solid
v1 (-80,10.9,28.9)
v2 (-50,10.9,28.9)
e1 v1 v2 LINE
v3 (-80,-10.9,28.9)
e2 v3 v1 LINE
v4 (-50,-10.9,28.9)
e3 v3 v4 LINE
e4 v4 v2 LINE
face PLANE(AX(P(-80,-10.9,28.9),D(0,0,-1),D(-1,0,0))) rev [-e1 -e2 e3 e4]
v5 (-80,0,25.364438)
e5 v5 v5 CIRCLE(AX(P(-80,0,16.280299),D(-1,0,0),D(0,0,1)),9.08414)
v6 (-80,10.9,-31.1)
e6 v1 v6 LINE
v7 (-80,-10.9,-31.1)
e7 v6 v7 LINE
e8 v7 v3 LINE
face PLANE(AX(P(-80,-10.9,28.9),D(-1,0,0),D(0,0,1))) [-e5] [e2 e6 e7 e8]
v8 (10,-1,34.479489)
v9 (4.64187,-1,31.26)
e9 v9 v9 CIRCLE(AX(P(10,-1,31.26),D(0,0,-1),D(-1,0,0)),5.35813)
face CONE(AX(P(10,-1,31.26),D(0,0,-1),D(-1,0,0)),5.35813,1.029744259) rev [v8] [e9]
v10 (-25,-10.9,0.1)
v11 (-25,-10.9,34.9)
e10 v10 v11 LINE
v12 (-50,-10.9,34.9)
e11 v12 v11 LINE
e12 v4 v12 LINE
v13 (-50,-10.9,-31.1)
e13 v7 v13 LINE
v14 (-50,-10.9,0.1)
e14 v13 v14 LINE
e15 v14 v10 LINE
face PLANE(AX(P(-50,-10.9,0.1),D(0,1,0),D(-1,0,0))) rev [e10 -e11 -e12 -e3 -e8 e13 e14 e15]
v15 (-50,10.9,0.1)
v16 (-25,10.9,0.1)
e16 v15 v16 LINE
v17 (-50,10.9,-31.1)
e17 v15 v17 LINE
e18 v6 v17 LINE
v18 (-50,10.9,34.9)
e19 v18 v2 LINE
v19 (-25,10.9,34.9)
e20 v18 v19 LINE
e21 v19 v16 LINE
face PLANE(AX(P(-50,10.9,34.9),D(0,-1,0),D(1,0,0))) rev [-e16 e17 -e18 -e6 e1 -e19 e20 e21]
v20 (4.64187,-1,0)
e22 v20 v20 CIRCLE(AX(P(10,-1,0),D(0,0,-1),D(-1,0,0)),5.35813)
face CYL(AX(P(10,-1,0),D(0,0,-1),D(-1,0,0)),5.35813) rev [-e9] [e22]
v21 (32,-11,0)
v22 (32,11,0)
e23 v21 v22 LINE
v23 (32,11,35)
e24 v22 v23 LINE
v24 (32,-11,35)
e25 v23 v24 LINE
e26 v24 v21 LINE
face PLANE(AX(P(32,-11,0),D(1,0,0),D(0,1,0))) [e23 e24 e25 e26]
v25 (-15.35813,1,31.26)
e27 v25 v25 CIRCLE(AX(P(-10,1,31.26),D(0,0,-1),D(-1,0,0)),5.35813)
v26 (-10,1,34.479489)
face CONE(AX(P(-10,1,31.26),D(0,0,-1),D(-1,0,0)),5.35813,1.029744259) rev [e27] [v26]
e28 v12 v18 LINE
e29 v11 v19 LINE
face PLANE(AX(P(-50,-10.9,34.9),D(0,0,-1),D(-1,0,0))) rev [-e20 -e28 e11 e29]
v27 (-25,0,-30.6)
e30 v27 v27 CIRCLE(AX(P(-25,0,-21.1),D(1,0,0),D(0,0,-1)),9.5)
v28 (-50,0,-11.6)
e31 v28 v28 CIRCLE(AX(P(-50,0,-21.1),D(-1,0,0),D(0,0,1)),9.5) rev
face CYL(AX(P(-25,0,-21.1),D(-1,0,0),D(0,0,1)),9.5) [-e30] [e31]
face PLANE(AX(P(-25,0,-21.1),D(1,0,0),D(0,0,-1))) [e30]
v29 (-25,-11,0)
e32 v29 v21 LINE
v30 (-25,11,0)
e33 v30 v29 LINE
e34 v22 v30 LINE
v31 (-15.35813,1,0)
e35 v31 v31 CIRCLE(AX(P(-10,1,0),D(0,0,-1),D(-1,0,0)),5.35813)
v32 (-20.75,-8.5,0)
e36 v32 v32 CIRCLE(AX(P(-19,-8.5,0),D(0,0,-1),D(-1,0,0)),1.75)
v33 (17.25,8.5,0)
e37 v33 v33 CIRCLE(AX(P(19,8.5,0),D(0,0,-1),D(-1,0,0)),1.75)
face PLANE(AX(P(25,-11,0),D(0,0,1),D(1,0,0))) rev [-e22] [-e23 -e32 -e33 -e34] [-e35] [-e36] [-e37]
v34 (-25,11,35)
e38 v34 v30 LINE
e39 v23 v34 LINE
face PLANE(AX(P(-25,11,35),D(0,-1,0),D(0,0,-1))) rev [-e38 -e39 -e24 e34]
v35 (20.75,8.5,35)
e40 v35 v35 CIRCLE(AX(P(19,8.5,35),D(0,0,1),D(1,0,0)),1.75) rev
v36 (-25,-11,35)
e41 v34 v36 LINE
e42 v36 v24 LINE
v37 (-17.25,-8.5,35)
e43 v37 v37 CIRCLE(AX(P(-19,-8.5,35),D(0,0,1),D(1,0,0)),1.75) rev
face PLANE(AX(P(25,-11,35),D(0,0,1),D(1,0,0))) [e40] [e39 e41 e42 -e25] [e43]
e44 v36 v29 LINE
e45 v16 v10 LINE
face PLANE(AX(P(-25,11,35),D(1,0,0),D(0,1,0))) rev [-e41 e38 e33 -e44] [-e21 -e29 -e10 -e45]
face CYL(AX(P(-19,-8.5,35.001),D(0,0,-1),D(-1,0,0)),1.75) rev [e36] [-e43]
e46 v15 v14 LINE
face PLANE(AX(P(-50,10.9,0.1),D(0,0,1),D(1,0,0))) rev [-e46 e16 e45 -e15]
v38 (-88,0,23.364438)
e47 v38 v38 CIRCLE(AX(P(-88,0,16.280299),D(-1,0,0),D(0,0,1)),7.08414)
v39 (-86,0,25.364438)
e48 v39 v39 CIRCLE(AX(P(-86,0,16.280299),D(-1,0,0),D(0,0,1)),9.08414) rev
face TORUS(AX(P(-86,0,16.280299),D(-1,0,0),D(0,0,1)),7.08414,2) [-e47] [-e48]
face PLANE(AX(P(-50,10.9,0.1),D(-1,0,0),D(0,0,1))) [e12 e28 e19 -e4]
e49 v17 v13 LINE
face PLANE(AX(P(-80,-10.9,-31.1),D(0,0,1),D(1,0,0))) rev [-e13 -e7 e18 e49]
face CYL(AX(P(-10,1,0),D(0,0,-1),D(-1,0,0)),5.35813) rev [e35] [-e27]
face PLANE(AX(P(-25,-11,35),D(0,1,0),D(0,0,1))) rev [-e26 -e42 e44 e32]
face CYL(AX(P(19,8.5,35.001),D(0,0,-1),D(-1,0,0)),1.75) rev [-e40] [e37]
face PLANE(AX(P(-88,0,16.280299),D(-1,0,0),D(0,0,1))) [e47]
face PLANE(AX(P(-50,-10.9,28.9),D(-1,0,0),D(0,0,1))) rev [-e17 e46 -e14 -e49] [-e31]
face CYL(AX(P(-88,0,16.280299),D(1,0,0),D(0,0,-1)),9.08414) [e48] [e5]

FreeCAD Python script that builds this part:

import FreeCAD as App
import Part
import Sketcher
from FreeCAD import Vector
Q = App.Units.Quantity


def edges_at(feature, points):
    """Names of the edges that pass closest to the given points."""
    edges = feature.Shape.Edges
    near = lambda p: min(range(len(edges)), key=lambda i: edges[i].distToShape(Part.Vertex(*p))[0])
    return sorted({f"Edge{near(p) + 1}" for p in points})

doc = App.newDocument("Part")
params = doc.addObject("Spreadsheet::Sheet", "Params")
for row, (alias, value) in enumerate([
    ("sketch1_width", "50 mm"),
    ("sketch1_height", "22 mm"),
    ("pad1_length", "35 mm"),
    ("pocket1_length", "10 mm"),
    ("hole_diameter", "10.71626 mm"),
    ("hole_depth", "31.26 mm"),
    ("sketch4_diameter", "3.5 mm"),
    ("sketch5_diameter", "3.5 mm"),
    ("sketch6_width", "22 mm"),
    ("sketch6_height", "35 mm"),
    ("pad2_length", "7 mm"),
    ("sketch7_width", "21.8 mm"),
    ("sketch7_height", "34.8 mm"),
    ("pad3_length", "25 mm"),
    ("sketch8_height", "60 mm"),
    ("sketch8_width", "21.8 mm"),
    ("pad4_length", "30 mm"),
    ("sketch9_diameter", "19 mm"),
    ("pad5_length", "25 mm"),
    ("pad6_length", "8 mm"),
    ("fillet_radius", "2 mm"),
], start=1):
    params.set(f"A{row}", alias)
    params.set(f"B{row}", "=" + value)
    params.setAlias(f"B{row}", alias)

body = doc.addObject("PartDesign::Body", "Body")

sketch1 = body.newObject("Sketcher::SketchObject", "Sketch")
sketch1.AttachmentSupport = (doc.getObject("XY_Plane"), [""])
sketch1.MapMode = "FlatFace"
sketch1.addGeometry([
    Part.LineSegment(Vector(-25, 11, 0), Vector(-25, -11, 0)),
    Part.LineSegment(Vector(-25, -11, 0), Vector(25, -11, 0)),
    Part.LineSegment(Vector(25, -11, 0), Vector(25, 11, 0)),
    Part.LineSegment(Vector(25, 11, 0), Vector(-25, 11, 0)),
], False)
sketch1.addConstraint([
    Sketcher.Constraint("Coincident", 0, 2, 1, 1),
    Sketcher.Constraint("Coincident", 1, 2, 2, 1),
    Sketcher.Constraint("Coincident", 2, 2, 3, 1),
    Sketcher.Constraint("Coincident", 3, 2, 0, 1),
    Sketcher.Constraint("Vertical", 0),
    Sketcher.Constraint("Horizontal", 1),
    Sketcher.Constraint("Vertical", 2),
    Sketcher.Constraint("Horizontal", 3),
    Sketcher.Constraint("Symmetric", 0, 2, 2, 2, -1, 1),
    Sketcher.Constraint("DistanceX", 1, 1, 1, 2, Q("50 mm")),
    Sketcher.Constraint("DistanceY", 0, 2, 0, 1, Q("22 mm")),
])
sketch1.setExpression("Constraints[9]", "Params.sketch1_width")
sketch1.setExpression("Constraints[10]", "Params.sketch1_height")
pad1 = body.newObject("PartDesign::Pad", "Pad")
pad1.Profile = sketch1
pad1.setExpression("Length", "Params.pad1_length")

sketch2 = body.newObject("Sketcher::SketchObject", "Sketch001")
sketch2.AttachmentSupport = (doc.getObject("XY_Plane"), [""])
sketch2.MapMode = "FlatFace"
sketch2.addGeometry([
    Part.Circle(Vector(10, -1, 0), Vector(0, 0, 1), 1.3),
    Part.Circle(Vector(-10, 1, 0), Vector(0, 0, 1), 1.2),
], False)
sketch2.addConstraint([
    Sketcher.Constraint("Symmetric", 0, 3, 1, 3, -1, 1),
    Sketcher.Constraint("DistanceX", -1, 1, 0, 3, Q("10 mm")),
    Sketcher.Constraint("DistanceY", 0, 3, -1, 1, Q("1 mm")),
    Sketcher.Constraint("Diameter", 0, Q("2.559369 mm")),
    Sketcher.Constraint("Diameter", 1, Q("2.329481 mm")),
])
pocket1 = body.newObject("PartDesign::Pocket", "Pocket")
pocket1.Profile = sketch2
pocket1.setExpression("Length", "Params.pocket1_length")
pocket1.Reversed = True

sketch3 = body.newObject("Sketcher::SketchObject", "Sketch002")
sketch3.AttachmentSupport = (doc.getObject("XY_Plane"), [""])
sketch3.MapMode = "FlatFace"
sketch3.addGeometry([
    Part.Circle(Vector(-10, 1, 0), Vector(0, 0, 1), 5),
    Part.Circle(Vector(10, -1, 0), Vector(0, 0, 1), 5),
], False)
sketch3.addConstraint([
    Sketcher.Constraint("Equal", 0, 1),
    Sketcher.Constraint("Symmetric", 0, 3, 1, 3, -1, 1),
    Sketcher.Constraint("DistanceX", 0, 3, -1, 1, Q("10 mm")),
    Sketcher.Constraint("DistanceY", -1, 1, 0, 3, Q("1 mm")),
    Sketcher.Constraint("Diameter", 0, Q("10.71626 mm")),
])
doc.recompute()
hole = body.newObject("PartDesign::Hole", "Hole")
hole.Profile = sketch3
hole.ThreadType = "None"
hole.setExpression("Diameter", "Params.hole_diameter")
hole.DepthType = "Dimension"
hole.setExpression("Depth", "Params.hole_depth")
hole.DrillPoint = "Angled"
hole.DrillPointAngle = 118
hole.Reversed = True

sketch4 = body.newObject("Sketcher::SketchObject", "Sketch003")
sketch4.AttachmentSupport = (doc.getObject("XY_Plane"), [""])
sketch4.MapMode = "FlatFace"
sketch4.addGeometry(Part.Circle(Vector(19, 8.5, 0), Vector(0, 0, 1), 1.8), False)
sketch4.addConstraint([
    Sketcher.Constraint("Diameter", 0, Q("3.5 mm")),
    Sketcher.Constraint("DistanceX", -1, 1, 0, 3, Q("19 mm")),
    Sketcher.Constraint("DistanceY", -1, 1, 0, 3, Q("8.5 mm")),
])
sketch4.setExpression("Constraints[0]", "Params.sketch4_diameter")
pocket2 = body.newObject("PartDesign::Pocket", "Pocket001")
pocket2.Profile = sketch4
pocket2.Type = "UpToFirst"
pocket2.Reversed = True

sketch5 = body.newObject("Sketcher::SketchObject", "Sketch004")
sketch5.AttachmentSupport = (doc.getObject("XY_Plane"), [""])
sketch5.MapMode = "FlatFace"
sketch5.addGeometry(Part.Circle(Vector(-19, -8.5, 0), Vector(0, 0, 1), 1.8), False)
sketch5.addConstraint([
    Sketcher.Constraint("Diameter", 0, Q("3.5 mm")),
    Sketcher.Constraint("DistanceX", 0, 3, -1, 1, Q("19 mm")),
    Sketcher.Constraint("DistanceY", 0, 3, -1, 1, Q("8.5 mm")),
])
sketch5.setExpression("Constraints[0]", "Params.sketch5_diameter")
pocket3 = body.newObject("PartDesign::Pocket", "Pocket002")
pocket3.Profile = sketch5
pocket3.Type = "UpToFirst"
pocket3.Reversed = True

sketch6 = body.newObject("Sketcher::SketchObject", "Sketch005")
sketch6.AttachmentSupport = (doc.getObject("YZ_Plane"), [""])
sketch6.MapMode = "FlatFace"
sketch6.AttachmentOffset = App.Placement(Vector(0, 0, 25), App.Rotation())
sketch6.addGeometry([
    Part.LineSegment(Vector(11, 35, 0), Vector(-11, 35, 0)),
    Part.LineSegment(Vector(-11, 35, 0), Vector(-11, 0, 0)),
    Part.LineSegment(Vector(-11, 0, 0), Vector(11, 0, 0)),
    Part.LineSegment(Vector(11, 0, 0), Vector(11, 35, 0)),
], False)
sketch6.addConstraint([
    Sketcher.Constraint("Coincident", 0, 2, 1, 1),
    Sketcher.Constraint("Coincident", 1, 2, 2, 1),
    Sketcher.Constraint("Coincident", 2, 2, 3, 1),
    Sketcher.Constraint("Coincident", 3, 2, 0, 1),
    Sketcher.Constraint("Horizontal", 0),
    Sketcher.Constraint("Vertical", 1),
    Sketcher.Constraint("Horizontal", 2),
    Sketcher.Constraint("Vertical", 3),
    Sketcher.Constraint("Symmetric", 1, 2, 2, 2, -1, 1),
    Sketcher.Constraint("DistanceX", 0, 2, 0, 1, Q("22 mm")),
    Sketcher.Constraint("DistanceY", 1, 2, 1, 1, Q("35 mm")),
])
sketch6.setExpression("Constraints[9]", "Params.sketch6_width")
sketch6.setExpression("Constraints[10]", "Params.sketch6_height")
pad2 = body.newObject("PartDesign::Pad", "Pad001")
pad2.Profile = sketch6
pad2.setExpression("Length", "Params.pad2_length")

sketch7 = body.newObject("Sketcher::SketchObject", "Sketch006")
sketch7.AttachmentSupport = (doc.getObject("YZ_Plane"), [""])
sketch7.MapMode = "FlatFace"
sketch7.AttachmentOffset = App.Placement(Vector(0, 0, -25), App.Rotation())
sketch7.addGeometry([
    Part.LineSegment(Vector(11, 0, 0), Vector(-11, 0, 0)),
    Part.LineSegment(Vector(-11, 0, 0), Vector(-11, 35, 0)),
    Part.LineSegment(Vector(-11, 35, 0), Vector(11, 35, 0)),
    Part.LineSegment(Vector(11, 35, 0), Vector(11, 0, 0)),
], False)
sketch7.addConstraint([
    Sketcher.Constraint("Coincident", 0, 2, 1, 1),
    Sketcher.Constraint("Coincident", 1, 2, 2, 1),
    Sketcher.Constraint("Coincident", 2, 2, 3, 1),
    Sketcher.Constraint("Coincident", 3, 2, 0, 1),
    Sketcher.Constraint("Horizontal", 0),
    Sketcher.Constraint("Vertical", 1),
    Sketcher.Constraint("Horizontal", 2),
    Sketcher.Constraint("Vertical", 3),
    Sketcher.Constraint("DistanceX", 0, 2, 0, 1, Q("21.8 mm")),
    Sketcher.Constraint("DistanceY", 1, 1, 1, 2, Q("34.8 mm")),
    Sketcher.Constraint("DistanceX", 0, 2, -1, 1, Q("10.9 mm")),
    Sketcher.Constraint("DistanceY", -1, 1, 0, 2, Q("0.1 mm")),
])
sketch7.setExpression("Constraints[8]", "Params.sketch7_width")
sketch7.setExpression("Constraints[9]", "Params.sketch7_height")
pad3 = body.newObject("PartDesign::Pad", "Pad002")
pad3.Profile = sketch7
pad3.setExpression("Length", "Params.pad3_length")
pad3.Reversed = True

sketch8 = body.newObject("Sketcher::SketchObject", "Sketch007")
sketch8.AttachmentSupport = (doc.getObject("YZ_Plane"), [""])
sketch8.MapMode = "FlatFace"
sketch8.AttachmentOffset = App.Placement(Vector(0, 0, -50), App.Rotation())
sketch8.addGeometry([
    Part.LineSegment(Vector(11, -31, 0), Vector(-11, -31, 0)),
    Part.LineSegment(Vector(-11, -31, 0), Vector(-11, 29, 0)),
    Part.LineSegment(Vector(-11, 29, 0), Vector(11, 29, 0)),
    Part.LineSegment(Vector(11, 29, 0), Vector(11, -31, 0)),
], False)
sketch8.addConstraint([
    Sketcher.Constraint("Coincident", 0, 2, 1, 1),
    Sketcher.Constraint("Coincident", 1, 2, 2, 1),
    Sketcher.Constraint("Coincident", 2, 2, 3, 1),
    Sketcher.Constraint("Coincident", 3, 2, 0, 1),
    Sketcher.Constraint("Horizontal", 0),
    Sketcher.Constraint("Vertical", 1),
    Sketcher.Constraint("Horizontal", 2),
    Sketcher.Constraint("Vertical", 3),
    Sketcher.Constraint("DistanceY", 1, 1, 1, 2, Q("60 mm")),
    Sketcher.Constraint("DistanceX", 0, 2, 0, 1, Q("21.8 mm")),
    Sketcher.Constraint("DistanceX", 0, 2, -1, 1, Q("10.9 mm")),
    Sketcher.Constraint("DistanceY", 0, 2, -1, 1, Q("31.1 mm")),
])
sketch8.setExpression("Constraints[8]", "Params.sketch8_height")
sketch8.setExpression("Constraints[9]", "Params.sketch8_width")
pad4 = body.newObject("PartDesign::Pad", "Pad003")
pad4.Profile = sketch8
pad4.setExpression("Length", "Params.pad4_length")
pad4.Reversed = True

sketch9 = body.newObject("Sketcher::SketchObject", "Sketch008")
sketch9.AttachmentSupport = (doc.getObject("YZ_Plane"), [""])
sketch9.MapMode = "FlatFace"
sketch9.AttachmentOffset = App.Placement(Vector(0, 0, -50), App.Rotation())
sketch9.addGeometry(Part.Circle(Vector(0, -21, 0), Vector(0, 0, 1), 10), False)
sketch9.addConstraint([
    Sketcher.Constraint("PointOnObject", 0, 3, -2),
    Sketcher.Constraint("Diameter", 0, Q("19 mm")),
    Sketcher.Constraint("DistanceY", 0, 3, -1, 1, Q("21.1 mm")),
])
sketch9.setExpression("Constraints[1]", "Params.sketch9_diameter")
pad5 = body.newObject("PartDesign::Pad", "Pad004")
pad5.Profile = sketch9
pad5.setExpression("Length", "Params.pad5_length")

sketch10 = body.newObject("Sketcher::SketchObject", "Sketch009")
sketch10.AttachmentSupport = (doc.getObject("YZ_Plane"), [""])
sketch10.MapMode = "FlatFace"
sketch10.AttachmentOffset = App.Placement(Vector(0, 0, -80), App.Rotation())
sketch10.addGeometry(Part.Circle(Vector(0, 16, 0), Vector(0, 0, 1), 9), False)
sketch10.addConstraint([
    Sketcher.Constraint("PointOnObject", 0, 3, -2),
    Sketcher.Constraint("Diameter", 0, Q("18.168279 mm")),
    Sketcher.Constraint("DistanceY", -1, 1, 0, 3, Q("16.280299 mm")),
])
pad6 = body.newObject("PartDesign::Pad", "Pad005")
pad6.Profile = sketch10
pad6.setExpression("Length", "Params.pad6_length")
pad6.Reversed = True
doc.recompute()

fillet = body.newObject("PartDesign::Fillet", "Fillet")
fillet.Base = (pad6, edges_at(pad6, [(-88, 0, 7.196)]))
fillet.setExpression("Radius", "Params.fillet_radius")

doc.recompute()
